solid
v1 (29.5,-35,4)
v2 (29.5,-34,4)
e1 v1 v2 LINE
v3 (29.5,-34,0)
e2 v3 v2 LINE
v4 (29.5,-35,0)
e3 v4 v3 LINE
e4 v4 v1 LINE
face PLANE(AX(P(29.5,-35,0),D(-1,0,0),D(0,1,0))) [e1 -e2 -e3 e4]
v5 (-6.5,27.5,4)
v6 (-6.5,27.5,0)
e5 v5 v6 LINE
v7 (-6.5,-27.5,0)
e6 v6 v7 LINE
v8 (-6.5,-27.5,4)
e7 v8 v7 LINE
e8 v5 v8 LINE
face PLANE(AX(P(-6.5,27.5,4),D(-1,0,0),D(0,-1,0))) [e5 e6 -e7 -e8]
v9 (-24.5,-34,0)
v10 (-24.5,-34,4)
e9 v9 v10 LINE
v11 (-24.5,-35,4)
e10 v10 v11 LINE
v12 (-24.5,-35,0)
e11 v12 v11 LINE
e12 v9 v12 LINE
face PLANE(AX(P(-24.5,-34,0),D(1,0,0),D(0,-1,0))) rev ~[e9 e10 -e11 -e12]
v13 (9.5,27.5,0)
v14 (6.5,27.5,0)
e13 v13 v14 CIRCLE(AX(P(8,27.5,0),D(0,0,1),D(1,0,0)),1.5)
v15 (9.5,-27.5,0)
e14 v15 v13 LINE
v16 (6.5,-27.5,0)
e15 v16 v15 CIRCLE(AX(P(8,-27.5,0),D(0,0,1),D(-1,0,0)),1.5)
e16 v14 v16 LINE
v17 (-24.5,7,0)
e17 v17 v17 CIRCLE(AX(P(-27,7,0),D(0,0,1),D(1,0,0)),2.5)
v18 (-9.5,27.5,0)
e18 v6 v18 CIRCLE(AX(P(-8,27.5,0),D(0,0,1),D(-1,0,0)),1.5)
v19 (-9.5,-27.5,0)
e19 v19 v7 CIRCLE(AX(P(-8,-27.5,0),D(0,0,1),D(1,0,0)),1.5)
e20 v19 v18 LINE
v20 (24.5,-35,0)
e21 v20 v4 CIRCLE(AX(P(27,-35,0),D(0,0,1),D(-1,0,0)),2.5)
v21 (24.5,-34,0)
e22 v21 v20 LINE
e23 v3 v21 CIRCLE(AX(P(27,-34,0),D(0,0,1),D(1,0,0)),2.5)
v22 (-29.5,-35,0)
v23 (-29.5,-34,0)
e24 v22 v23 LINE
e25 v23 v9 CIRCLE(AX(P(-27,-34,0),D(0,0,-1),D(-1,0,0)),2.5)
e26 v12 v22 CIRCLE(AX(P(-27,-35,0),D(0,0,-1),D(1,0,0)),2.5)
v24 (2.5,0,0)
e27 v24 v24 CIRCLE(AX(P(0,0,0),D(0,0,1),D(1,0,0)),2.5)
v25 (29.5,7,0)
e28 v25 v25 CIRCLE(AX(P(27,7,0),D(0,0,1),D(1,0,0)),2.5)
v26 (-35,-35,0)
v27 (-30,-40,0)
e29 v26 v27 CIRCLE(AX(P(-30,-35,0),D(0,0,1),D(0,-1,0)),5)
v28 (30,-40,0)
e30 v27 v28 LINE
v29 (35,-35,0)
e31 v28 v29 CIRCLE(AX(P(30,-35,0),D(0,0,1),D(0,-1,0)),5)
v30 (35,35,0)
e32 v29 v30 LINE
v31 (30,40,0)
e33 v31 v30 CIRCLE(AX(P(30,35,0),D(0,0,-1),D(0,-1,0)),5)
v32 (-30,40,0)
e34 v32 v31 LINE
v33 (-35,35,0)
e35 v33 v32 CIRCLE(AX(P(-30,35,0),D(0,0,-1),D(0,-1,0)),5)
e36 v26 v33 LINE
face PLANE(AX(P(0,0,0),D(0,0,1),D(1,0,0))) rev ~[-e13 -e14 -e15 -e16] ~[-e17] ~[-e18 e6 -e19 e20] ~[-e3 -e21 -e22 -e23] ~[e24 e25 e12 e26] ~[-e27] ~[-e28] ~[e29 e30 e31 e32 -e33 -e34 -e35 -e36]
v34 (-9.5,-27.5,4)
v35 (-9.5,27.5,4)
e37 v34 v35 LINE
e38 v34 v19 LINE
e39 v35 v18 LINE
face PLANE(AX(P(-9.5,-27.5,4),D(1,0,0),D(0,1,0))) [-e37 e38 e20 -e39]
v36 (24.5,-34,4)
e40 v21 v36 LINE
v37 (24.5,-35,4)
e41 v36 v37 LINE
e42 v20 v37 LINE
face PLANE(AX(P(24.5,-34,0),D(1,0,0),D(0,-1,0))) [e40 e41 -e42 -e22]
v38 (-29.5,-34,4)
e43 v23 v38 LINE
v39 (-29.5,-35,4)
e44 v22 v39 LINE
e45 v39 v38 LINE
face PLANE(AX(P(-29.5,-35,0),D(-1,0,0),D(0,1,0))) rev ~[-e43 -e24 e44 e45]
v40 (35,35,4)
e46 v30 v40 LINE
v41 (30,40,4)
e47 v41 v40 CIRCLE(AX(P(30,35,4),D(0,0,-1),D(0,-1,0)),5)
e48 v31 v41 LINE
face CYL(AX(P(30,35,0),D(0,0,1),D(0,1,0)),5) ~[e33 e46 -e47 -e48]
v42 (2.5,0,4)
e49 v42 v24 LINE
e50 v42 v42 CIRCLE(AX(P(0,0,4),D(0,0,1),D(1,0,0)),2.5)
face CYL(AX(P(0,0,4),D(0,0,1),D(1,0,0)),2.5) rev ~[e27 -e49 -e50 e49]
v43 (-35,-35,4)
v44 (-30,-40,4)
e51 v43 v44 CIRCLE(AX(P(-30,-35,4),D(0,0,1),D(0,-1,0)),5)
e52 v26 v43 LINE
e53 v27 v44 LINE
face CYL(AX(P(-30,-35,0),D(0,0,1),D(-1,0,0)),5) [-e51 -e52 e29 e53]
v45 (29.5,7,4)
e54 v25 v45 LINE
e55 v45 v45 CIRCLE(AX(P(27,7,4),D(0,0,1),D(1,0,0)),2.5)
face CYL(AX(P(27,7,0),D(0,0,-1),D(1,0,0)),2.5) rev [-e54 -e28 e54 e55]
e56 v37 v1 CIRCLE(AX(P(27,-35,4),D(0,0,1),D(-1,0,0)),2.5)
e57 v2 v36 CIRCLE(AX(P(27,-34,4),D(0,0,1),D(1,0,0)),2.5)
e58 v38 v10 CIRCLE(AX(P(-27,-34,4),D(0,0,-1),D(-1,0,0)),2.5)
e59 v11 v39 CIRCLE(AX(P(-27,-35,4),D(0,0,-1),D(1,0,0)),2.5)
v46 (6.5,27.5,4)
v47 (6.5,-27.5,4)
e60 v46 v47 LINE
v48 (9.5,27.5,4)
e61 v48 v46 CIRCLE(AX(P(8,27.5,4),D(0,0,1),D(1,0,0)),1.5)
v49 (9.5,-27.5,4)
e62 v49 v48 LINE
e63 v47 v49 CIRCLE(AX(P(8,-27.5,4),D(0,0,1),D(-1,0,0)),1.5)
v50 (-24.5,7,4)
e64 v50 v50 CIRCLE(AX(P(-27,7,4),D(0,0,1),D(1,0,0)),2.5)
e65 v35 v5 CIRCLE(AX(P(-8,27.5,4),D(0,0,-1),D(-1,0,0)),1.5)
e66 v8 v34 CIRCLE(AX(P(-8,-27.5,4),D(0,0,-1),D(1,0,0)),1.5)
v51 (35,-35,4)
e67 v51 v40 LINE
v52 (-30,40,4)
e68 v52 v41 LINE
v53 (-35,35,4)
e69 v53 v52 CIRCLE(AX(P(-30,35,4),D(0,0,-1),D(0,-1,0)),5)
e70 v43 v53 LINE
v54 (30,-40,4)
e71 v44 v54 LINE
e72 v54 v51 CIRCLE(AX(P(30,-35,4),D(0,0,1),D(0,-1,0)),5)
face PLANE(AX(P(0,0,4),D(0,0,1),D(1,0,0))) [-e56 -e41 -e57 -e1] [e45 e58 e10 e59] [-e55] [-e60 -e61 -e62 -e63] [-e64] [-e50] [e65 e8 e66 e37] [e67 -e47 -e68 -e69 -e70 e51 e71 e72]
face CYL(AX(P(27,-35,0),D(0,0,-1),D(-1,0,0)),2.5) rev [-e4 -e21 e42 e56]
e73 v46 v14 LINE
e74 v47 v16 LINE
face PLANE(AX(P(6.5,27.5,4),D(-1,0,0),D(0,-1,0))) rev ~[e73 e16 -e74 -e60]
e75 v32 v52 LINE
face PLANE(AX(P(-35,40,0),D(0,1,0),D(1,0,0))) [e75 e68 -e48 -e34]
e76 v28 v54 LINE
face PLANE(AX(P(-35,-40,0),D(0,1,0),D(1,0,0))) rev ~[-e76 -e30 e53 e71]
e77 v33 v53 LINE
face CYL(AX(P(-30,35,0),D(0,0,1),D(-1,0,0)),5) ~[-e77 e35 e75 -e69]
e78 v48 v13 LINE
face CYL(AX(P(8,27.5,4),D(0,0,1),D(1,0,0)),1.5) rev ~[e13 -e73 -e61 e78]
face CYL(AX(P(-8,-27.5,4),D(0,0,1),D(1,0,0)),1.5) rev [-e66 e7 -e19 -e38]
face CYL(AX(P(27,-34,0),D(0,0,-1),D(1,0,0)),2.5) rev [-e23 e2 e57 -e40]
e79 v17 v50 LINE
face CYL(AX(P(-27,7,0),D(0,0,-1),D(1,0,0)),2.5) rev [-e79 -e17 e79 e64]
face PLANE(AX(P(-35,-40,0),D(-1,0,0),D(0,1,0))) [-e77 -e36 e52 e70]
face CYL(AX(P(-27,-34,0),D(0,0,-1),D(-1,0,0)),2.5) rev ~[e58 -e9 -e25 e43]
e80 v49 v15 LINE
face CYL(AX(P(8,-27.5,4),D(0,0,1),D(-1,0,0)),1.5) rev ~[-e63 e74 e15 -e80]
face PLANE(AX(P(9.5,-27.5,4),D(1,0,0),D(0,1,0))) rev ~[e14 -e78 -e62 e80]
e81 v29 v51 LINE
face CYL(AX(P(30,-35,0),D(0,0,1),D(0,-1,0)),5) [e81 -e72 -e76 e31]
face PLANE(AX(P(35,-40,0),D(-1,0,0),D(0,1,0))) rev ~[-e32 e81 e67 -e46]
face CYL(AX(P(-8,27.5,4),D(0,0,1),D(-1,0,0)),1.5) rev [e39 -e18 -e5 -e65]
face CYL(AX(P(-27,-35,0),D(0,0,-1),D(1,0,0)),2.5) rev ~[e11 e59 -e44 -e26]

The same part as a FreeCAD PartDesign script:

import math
import FreeCAD as App
import Part
import Sketcher
Q = App.Units.Quantity


def edges_at(feature, points):
    """Names of the edges that pass closest to the given points."""
    edges = feature.Shape.Edges
    near = lambda p: min(range(len(edges)), key=lambda i: edges[i].distToShape(Part.Vertex(*p))[0])
    return sorted({f"Edge{near(p) + 1}" for p in points})

doc = App.newDocument("Part")
body = doc.addObject("PartDesign::Body", "Body")

# Sketch on XY plane
sketch1 = body.newObject("Sketcher::SketchObject", "Sketch")
sketch1.AttachmentSupport = (doc.getObject("XY_Plane"), [""])
sketch1.MapMode = "FlatFace"
sketch1.addGeometry([
    Part.LineSegment(App.Vector(-35, 40, 0), App.Vector(-35, -40, 0)),  # 0
    Part.LineSegment(App.Vector(-35, -40, 0), App.Vector(35, -40, 0)),  # 1
    Part.LineSegment(App.Vector(35, -40, 0), App.Vector(35, 40, 0)),  # 2
    Part.LineSegment(App.Vector(35, 40, 0), App.Vector(-35, 40, 0)),  # 3
    Part.ArcOfCircle(Part.Circle(App.Vector(-27, -34, 0), App.Vector(0, 0, 1), 2.5), math.radians(0), math.radians(180)),  # 4
    Part.LineSegment(App.Vector(-24.5, -34, 0), App.Vector(-24.5, -35, 0)),  # 5
    Part.ArcOfCircle(Part.Circle(App.Vector(-27, -35, 0), App.Vector(0, 0, 1), 2.5), math.radians(180), math.radians(360)),  # 6
    Part.LineSegment(App.Vector(-29.5, -35, 0), App.Vector(-29.5, -34, 0)),  # 7
    Part.LineSegment(App.Vector(24.5, -35, 0), App.Vector(24.5, -34, 0)),  # 8
    Part.ArcOfCircle(Part.Circle(App.Vector(27, -34, 0), App.Vector(0, 0, 1), 2.5), math.radians(0), math.radians(180)),  # 9
    Part.LineSegment(App.Vector(29.5, -34, 0), App.Vector(29.5, -35, 0)),  # 10
    Part.ArcOfCircle(Part.Circle(App.Vector(27, -35, 0), App.Vector(0, 0, 1), 2.5), math.radians(180), math.radians(360)),  # 11
    Part.Circle(App.Vector(-27, 7, 0), App.Vector(0, 0, 1), 2.5),  # 12
    Part.Circle(App.Vector(27, 7, 0), App.Vector(0, 0, 1), 2.5),  # 13
], False)
sketch1.addConstraint([
    Sketcher.Constraint("Coincident", 0, 2, 1, 1),
    Sketcher.Constraint("Coincident", 1, 2, 2, 1),
    Sketcher.Constraint("Coincident", 2, 2, 3, 1),
    Sketcher.Constraint("Coincident", 3, 2, 0, 1),
    Sketcher.Constraint("Tangent", 4, 1, 5, 1),
    Sketcher.Constraint("Tangent", 5, 2, 6, 2),
    Sketcher.Constraint("Tangent", 6, 1, 7, 1),
    Sketcher.Constraint("Tangent", 7, 2, 4, 2),
    Sketcher.Constraint("Tangent", 8, 2, 9, 2),
    Sketcher.Constraint("Tangent", 9, 1, 10, 1),
    Sketcher.Constraint("Tangent", 10, 2, 11, 2),
    Sketcher.Constraint("Tangent", 11, 1, 8, 1),
    Sketcher.Constraint("Vertical", 0),
    Sketcher.Constraint("Horizontal", 1),
    Sketcher.Constraint("Vertical", 2),
    Sketcher.Constraint("Horizontal", 3),
    Sketcher.Constraint("Vertical", 5),
    Sketcher.Constraint("Vertical", 7),
    Sketcher.Constraint("Vertical", 8),
    Sketcher.Constraint("Vertical", 10),
    Sketcher.Constraint("Equal", 6, 9),
    Sketcher.Constraint("Equal", 11, 12),
    Sketcher.Constraint("Equal", 12, 13),
    Sketcher.Constraint("Symmetric", 0, 2, 2, 2, -1, 1),
    Sketcher.Constraint("Symmetric", 4, 3, 9, 3, -2),
    Sketcher.Constraint("Symmetric", 12, 3, 13, 3, -2),
    Sketcher.Constraint("Horizontal", 6, 3, 11, 3),
    Sketcher.Constraint("Vertical", 6, 3, 12, 3),
    Sketcher.Constraint("Diameter", 12, Q("5 mm")),
    Sketcher.Constraint("DistanceX", 1, 1, 1, 2, Q("70 mm")),
    Sketcher.Constraint("DistanceY", 0, 2, 0, 1, Q("80 mm")),
    Sketcher.Constraint("DistanceY", 5, 2, 5, 1, Q("1 mm")),
    Sketcher.Constraint("DistanceX", 4, 3, -1, 1, Q("27 mm")),
    Sketcher.Constraint("DistanceY", 4, 3, -1, 1, Q("34 mm")),
    Sketcher.Constraint("DistanceY", -1, 1, 12, 3, Q("7 mm")),
])
pad1 = body.newObject("PartDesign::Pad", "Pad")
pad1.Profile = sketch1
pad1.Length = 4
doc.recompute()

fillet = body.newObject("PartDesign::Fillet", "Fillet")
fillet.Base = (pad1, edges_at(pad1, [
    (35, -40, 2),
    (-35, -40, 2),
    (-35, 40, 2),
    (35, 40, 2),
]))
fillet.Radius = 5

# Sketch on XY plane
sketch2 = body.newObject("Sketcher::SketchObject", "Sketch001")
sketch2.AttachmentSupport = (doc.getObject("XY_Plane"), [""])
sketch2.MapMode = "FlatFace"
sketch2.AttachmentOffset = App.Placement(App.Vector(0, 0, 4), App.Rotation())
sketch2.addGeometry([
    Part.Circle(App.Vector(0, 0, 0), App.Vector(0, 0, 1), 2.5),  # 0
    Part.LineSegment(App.Vector(-6.5, -27.5, 0), App.Vector(-6.5, 27.5, 0)),  # 1
    Part.ArcOfCircle(Part.Circle(App.Vector(-8, 27.5, 0), App.Vector(0, 0, 1), 1.5), math.radians(0), math.radians(180)),  # 2
    Part.LineSegment(App.Vector(-9.5, 27.5, 0), App.Vector(-9.5, -27.5, 0)),  # 3
    Part.ArcOfCircle(Part.Circle(App.Vector(-8, -27.5, 0), App.Vector(0, 0, 1), 1.5), math.radians(180), math.radians(360)),  # 4
    Part.LineSegment(App.Vector(6.5, 27.5, 0), App.Vector(6.5, -27.5, 0)),  # 5
    Part.ArcOfCircle(Part.Circle(App.Vector(8, -27.5, 0), App.Vector(0, 0, 1), 1.5), math.radians(180), math.radians(360)),  # 6
    Part.LineSegment(App.Vector(9.5, -27.5, 0), App.Vector(9.5, 27.5, 0)),  # 7
    Part.ArcOfCircle(Part.Circle(App.Vector(8, 27.5, 0), App.Vector(0, 0, 1), 1.5), math.radians(0), math.radians(180)),  # 8
], False)
sketch2.addConstraint([
    Sketcher.Constraint("Tangent", 1, 2, 2, 1),
    Sketcher.Constraint("Tangent", 2, 2, 3, 1),
    Sketcher.Constraint("Tangent", 3, 2, 4, 1),
    Sketcher.Constraint("Tangent", 4, 2, 1, 1),
    Sketcher.Constraint("Tangent", 5, 2, 6, 1),
    Sketcher.Constraint("Tangent", 6, 2, 7, 1),
    Sketcher.Constraint("Tangent", 7, 2, 8, 1),
    Sketcher.Constraint("Tangent", 8, 2, 5, 1),
    Sketcher.Constraint("Vertical", 1),
    Sketcher.Constraint("Vertical", 3),
    Sketcher.Constraint("Vertical", 5),
    Sketcher.Constraint("Vertical", 7),
    Sketcher.Constraint("Coincident", 0, 3, -1, 1),
    Sketcher.Constraint("Equal", 4, 6),
    Sketcher.Constraint("Symmetric", 2, 3, 6, 3, -1, 1),
    Sketcher.Constraint("Horizontal", 4, 3, 6, 3),
    Sketcher.Constraint("Horizontal", 2, 3, 8, 3),
    Sketcher.Constraint("Diameter", 0, Q("5 mm")),
    Sketcher.Constraint("Radius", 2, Q("1.5 mm")),
    Sketcher.Constraint("DistanceY", 1, 1, 1, 2, Q("55 mm")),
    Sketcher.Constraint("DistanceX", 2, 3, -1, 1, Q("8 mm")),
])
pocket1 = body.newObject("PartDesign::Pocket", "Pocket")
pocket1.Profile = sketch2
pocket1.Type = "ThroughAll"

doc.recompute()
